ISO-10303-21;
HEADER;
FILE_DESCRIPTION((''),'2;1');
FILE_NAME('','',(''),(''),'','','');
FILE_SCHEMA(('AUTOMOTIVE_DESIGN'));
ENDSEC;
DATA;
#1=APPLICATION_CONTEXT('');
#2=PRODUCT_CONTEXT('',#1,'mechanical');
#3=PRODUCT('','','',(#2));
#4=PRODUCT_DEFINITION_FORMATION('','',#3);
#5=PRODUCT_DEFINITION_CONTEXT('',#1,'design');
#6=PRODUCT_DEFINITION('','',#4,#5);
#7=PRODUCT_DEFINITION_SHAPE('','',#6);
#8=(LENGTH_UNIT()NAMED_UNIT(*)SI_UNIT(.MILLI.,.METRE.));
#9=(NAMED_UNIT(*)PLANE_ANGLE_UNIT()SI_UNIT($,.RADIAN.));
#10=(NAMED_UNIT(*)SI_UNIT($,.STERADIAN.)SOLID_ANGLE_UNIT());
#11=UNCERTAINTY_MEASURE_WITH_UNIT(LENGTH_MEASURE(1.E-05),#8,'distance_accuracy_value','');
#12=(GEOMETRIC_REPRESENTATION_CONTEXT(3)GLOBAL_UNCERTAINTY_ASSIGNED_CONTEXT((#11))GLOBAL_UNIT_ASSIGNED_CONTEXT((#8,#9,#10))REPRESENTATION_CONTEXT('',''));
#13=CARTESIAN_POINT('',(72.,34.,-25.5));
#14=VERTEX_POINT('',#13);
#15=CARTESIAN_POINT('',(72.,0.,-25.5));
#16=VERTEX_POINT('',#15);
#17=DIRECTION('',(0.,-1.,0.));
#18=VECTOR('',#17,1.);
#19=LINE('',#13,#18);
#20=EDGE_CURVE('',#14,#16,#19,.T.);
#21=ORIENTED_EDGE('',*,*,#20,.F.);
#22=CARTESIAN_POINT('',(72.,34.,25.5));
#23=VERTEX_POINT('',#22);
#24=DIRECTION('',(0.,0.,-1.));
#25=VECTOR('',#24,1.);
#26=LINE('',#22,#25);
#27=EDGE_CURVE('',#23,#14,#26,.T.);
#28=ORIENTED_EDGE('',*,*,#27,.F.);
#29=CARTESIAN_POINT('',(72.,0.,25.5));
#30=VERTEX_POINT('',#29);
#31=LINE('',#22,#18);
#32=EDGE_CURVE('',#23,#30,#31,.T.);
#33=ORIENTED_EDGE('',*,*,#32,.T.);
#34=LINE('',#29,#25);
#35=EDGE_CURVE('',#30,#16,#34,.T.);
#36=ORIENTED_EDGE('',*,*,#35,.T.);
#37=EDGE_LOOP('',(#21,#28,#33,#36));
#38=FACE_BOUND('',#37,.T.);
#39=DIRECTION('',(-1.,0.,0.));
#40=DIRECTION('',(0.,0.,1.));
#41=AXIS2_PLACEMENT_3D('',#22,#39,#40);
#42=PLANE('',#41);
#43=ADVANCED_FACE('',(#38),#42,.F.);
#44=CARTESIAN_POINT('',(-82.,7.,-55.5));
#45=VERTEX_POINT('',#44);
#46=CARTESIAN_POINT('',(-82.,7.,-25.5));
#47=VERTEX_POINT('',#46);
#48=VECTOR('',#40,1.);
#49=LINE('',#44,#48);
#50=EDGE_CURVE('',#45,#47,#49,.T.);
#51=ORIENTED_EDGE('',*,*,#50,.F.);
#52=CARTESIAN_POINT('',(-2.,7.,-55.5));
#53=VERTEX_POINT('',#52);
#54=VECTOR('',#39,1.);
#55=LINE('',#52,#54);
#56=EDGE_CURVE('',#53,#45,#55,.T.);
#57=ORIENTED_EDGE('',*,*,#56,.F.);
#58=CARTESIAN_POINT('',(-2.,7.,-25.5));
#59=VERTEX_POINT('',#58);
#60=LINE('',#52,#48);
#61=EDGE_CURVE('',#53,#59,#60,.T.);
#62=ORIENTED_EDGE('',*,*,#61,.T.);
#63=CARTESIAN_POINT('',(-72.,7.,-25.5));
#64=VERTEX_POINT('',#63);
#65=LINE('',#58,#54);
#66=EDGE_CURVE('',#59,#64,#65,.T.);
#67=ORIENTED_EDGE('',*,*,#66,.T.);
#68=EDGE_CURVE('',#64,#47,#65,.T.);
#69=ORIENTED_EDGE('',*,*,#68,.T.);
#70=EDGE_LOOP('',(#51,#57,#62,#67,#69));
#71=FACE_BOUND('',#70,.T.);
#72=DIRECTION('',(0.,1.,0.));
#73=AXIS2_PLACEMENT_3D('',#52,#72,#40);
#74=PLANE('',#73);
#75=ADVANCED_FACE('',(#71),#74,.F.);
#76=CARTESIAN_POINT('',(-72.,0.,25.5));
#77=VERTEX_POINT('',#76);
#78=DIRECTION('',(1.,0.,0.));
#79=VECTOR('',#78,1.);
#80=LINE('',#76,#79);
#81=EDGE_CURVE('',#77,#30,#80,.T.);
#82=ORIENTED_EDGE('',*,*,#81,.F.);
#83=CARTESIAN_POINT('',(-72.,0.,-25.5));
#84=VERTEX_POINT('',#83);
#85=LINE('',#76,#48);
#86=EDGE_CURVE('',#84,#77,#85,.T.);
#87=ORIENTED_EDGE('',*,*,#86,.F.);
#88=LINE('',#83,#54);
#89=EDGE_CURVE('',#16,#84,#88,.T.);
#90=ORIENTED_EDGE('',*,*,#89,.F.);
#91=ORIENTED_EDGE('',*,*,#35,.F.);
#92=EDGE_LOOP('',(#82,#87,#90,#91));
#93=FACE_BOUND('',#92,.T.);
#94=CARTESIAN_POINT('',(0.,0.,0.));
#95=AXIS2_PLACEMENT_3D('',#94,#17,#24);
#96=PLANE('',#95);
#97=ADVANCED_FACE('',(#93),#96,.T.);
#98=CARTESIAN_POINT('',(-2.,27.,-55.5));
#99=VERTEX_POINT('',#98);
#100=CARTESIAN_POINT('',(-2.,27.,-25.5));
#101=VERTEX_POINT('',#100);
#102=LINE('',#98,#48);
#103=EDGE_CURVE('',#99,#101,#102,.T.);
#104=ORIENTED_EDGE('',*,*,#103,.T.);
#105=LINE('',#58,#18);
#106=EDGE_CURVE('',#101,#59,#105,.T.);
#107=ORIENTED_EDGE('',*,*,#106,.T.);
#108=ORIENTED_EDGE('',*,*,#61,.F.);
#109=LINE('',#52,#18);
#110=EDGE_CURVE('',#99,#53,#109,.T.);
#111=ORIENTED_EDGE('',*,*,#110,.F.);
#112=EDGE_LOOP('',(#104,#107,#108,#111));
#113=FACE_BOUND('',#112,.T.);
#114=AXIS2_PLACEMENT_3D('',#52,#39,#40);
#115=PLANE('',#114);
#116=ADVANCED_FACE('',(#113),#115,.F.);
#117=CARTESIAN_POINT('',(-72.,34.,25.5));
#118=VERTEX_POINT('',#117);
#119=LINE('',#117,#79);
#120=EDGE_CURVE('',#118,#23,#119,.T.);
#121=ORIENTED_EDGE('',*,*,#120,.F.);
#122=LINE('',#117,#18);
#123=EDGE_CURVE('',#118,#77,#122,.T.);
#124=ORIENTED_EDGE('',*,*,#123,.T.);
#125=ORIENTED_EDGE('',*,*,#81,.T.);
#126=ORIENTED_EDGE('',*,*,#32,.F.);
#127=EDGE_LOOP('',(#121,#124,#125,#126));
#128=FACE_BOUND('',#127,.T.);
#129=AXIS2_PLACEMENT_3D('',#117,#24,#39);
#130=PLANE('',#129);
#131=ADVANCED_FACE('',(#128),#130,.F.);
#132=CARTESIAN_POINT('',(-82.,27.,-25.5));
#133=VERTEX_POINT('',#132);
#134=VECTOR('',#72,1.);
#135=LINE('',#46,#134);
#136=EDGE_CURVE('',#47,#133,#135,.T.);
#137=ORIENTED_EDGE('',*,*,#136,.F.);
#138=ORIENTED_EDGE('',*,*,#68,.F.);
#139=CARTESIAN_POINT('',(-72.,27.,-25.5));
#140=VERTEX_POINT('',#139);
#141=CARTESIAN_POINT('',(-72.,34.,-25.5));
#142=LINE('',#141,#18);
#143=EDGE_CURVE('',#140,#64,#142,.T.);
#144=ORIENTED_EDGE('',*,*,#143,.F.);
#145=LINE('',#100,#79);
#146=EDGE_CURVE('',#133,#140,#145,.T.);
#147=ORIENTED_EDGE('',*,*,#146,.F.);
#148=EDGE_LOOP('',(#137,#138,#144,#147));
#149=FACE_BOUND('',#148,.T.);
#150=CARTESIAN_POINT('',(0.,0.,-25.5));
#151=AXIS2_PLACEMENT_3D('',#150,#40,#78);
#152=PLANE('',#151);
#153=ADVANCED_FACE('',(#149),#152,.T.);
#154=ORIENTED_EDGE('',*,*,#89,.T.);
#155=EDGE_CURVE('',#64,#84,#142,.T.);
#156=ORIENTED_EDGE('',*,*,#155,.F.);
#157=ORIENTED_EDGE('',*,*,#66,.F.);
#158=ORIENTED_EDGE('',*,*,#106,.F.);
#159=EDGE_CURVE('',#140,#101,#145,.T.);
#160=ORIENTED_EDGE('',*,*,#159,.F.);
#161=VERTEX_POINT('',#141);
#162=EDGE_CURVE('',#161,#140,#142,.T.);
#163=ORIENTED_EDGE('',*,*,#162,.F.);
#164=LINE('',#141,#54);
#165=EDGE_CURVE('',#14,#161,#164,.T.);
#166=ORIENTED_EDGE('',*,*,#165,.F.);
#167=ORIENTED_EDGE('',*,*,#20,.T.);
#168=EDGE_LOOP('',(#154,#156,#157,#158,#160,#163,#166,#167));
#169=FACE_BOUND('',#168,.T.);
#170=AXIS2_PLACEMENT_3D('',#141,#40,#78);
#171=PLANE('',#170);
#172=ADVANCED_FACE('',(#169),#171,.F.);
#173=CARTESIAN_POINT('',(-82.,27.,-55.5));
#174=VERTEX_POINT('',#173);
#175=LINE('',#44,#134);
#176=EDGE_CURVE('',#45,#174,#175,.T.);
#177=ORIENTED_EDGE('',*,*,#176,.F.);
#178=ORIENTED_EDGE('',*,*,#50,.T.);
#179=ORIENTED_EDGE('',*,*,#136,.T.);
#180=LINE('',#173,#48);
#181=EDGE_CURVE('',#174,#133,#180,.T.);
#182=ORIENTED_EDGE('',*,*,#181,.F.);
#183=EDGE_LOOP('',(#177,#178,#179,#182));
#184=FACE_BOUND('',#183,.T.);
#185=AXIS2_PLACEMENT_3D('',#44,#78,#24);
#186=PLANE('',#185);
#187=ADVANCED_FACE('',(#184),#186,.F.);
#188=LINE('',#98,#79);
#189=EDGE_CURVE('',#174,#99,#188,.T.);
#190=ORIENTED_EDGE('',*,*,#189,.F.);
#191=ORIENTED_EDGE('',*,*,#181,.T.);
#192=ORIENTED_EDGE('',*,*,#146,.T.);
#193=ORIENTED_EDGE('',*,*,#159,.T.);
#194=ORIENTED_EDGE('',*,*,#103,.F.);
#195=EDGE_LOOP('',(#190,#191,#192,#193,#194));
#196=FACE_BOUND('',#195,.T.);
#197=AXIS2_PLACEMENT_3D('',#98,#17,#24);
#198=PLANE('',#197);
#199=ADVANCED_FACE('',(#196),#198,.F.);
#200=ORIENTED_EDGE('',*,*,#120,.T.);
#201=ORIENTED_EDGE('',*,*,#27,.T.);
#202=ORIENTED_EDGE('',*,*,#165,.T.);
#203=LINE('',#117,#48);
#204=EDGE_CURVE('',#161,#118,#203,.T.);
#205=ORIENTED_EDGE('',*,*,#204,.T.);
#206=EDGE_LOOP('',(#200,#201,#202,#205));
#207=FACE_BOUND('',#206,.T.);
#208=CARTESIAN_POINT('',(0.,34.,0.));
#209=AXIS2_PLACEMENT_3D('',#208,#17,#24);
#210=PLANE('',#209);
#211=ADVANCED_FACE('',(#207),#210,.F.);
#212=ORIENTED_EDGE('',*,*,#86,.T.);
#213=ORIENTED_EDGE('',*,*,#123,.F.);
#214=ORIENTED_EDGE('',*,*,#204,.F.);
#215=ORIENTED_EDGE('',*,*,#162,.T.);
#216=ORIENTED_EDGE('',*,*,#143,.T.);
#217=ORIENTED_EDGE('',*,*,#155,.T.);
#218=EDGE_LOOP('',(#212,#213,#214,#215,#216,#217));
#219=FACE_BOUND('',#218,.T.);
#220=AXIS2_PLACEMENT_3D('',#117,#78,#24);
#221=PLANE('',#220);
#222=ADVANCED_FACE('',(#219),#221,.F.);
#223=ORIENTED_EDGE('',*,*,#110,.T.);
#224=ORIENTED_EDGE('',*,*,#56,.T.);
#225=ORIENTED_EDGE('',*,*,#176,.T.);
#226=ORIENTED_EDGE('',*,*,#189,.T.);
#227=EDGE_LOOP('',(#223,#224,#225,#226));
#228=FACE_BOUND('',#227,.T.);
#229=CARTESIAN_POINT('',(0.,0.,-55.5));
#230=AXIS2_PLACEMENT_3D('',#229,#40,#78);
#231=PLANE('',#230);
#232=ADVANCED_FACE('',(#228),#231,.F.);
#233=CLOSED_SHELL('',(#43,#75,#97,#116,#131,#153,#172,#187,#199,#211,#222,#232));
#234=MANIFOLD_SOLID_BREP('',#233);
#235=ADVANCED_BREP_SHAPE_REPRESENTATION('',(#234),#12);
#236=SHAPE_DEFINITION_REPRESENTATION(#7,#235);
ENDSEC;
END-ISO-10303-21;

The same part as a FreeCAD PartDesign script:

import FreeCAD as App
import Part
import Sketcher
Q = App.Units.Quantity


def add_polygon(sketch, points):
    """Adds a closed chain of lines whose ends are joined by coincident constraints."""
    first, n = sketch.GeometryCount, len(points)
    for a, b in zip(points, points[1:] + points[:1]):
        sketch.addGeometry(Part.LineSegment(App.Vector(*a, 0), App.Vector(*b, 0)), False)
    for i in range(n):
        sketch.addConstraint(Sketcher.Constraint("Coincident", first + i, 2, first + (i + 1) % n, 1))

doc = App.newDocument("Part")
body = doc.addObject("PartDesign::Body", "Body")

# Sketch on XZ plane
sketch1 = body.newObject("Sketcher::SketchObject", "Sketch")
sketch1.AttachmentSupport = (doc.getObject("XZ_Plane"), [""])
sketch1.MapMode = "FlatFace"
add_polygon(sketch1, [(-72, -25.5), (-72, 25.5), (72, 25.5), (72, -25.5)])  # lines 0-3
sketch1.addConstraint(Sketcher.Constraint("Vertical", 0))
sketch1.addConstraint(Sketcher.Constraint("Horizontal", 1))
sketch1.addConstraint(Sketcher.Constraint("Vertical", 2))
sketch1.addConstraint(Sketcher.Constraint("Horizontal", 3))
sketch1.addConstraint(Sketcher.Constraint("Symmetric", 0, 2, 2, 2, -1, 1))
sketch1.addConstraint(Sketcher.Constraint("DistanceX", 1, 1, 1, 2, Q("144 mm")))
sketch1.addConstraint(Sketcher.Constraint("DistanceY", 0, 1, 0, 2, Q("51 mm")))
pad1 = body.newObject("PartDesign::Pad", "Pad")
pad1.Profile = sketch1
pad1.Length = 34
pad1.Reversed = True

# Sketch on XY plane
sketch2 = body.newObject("Sketcher::SketchObject", "Sketch001")
sketch2.AttachmentSupport = (doc.getObject("XY_Plane"), [""])
sketch2.MapMode = "FlatFace"
sketch2.AttachmentOffset = App.Placement(App.Vector(0, 0, -25.5), App.Rotation())
add_polygon(sketch2, [(-2, 27), (-2, 7), (-82, 7), (-82, 27)])  # lines 0-3
sketch2.addConstraint(Sketcher.Constraint("Vertical", 0))
sketch2.addConstraint(Sketcher.Constraint("Horizontal", 1))
sketch2.addConstraint(Sketcher.Constraint("Vertical", 2))
sketch2.addConstraint(Sketcher.Constraint("Horizontal", 3))
sketch2.addConstraint(Sketcher.Constraint("DistanceX", 1, 2, 1, 1, Q("80 mm")))
sketch2.addConstraint(Sketcher.Constraint("DistanceY", 0, 2, 0, 1, Q("20 mm")))
sketch2.addConstraint(Sketcher.Constraint("DistanceX", 0, 2, -1, 1, Q("2 mm")))
sketch2.addConstraint(Sketcher.Constraint("DistanceY", -1, 1, 0, 2, Q("7 mm")))
pad2 = body.newObject("PartDesign::Pad", "Pad001")
pad2.Profile = sketch2
pad2.Length = 30
pad2.Reversed = True

doc.recompute()
